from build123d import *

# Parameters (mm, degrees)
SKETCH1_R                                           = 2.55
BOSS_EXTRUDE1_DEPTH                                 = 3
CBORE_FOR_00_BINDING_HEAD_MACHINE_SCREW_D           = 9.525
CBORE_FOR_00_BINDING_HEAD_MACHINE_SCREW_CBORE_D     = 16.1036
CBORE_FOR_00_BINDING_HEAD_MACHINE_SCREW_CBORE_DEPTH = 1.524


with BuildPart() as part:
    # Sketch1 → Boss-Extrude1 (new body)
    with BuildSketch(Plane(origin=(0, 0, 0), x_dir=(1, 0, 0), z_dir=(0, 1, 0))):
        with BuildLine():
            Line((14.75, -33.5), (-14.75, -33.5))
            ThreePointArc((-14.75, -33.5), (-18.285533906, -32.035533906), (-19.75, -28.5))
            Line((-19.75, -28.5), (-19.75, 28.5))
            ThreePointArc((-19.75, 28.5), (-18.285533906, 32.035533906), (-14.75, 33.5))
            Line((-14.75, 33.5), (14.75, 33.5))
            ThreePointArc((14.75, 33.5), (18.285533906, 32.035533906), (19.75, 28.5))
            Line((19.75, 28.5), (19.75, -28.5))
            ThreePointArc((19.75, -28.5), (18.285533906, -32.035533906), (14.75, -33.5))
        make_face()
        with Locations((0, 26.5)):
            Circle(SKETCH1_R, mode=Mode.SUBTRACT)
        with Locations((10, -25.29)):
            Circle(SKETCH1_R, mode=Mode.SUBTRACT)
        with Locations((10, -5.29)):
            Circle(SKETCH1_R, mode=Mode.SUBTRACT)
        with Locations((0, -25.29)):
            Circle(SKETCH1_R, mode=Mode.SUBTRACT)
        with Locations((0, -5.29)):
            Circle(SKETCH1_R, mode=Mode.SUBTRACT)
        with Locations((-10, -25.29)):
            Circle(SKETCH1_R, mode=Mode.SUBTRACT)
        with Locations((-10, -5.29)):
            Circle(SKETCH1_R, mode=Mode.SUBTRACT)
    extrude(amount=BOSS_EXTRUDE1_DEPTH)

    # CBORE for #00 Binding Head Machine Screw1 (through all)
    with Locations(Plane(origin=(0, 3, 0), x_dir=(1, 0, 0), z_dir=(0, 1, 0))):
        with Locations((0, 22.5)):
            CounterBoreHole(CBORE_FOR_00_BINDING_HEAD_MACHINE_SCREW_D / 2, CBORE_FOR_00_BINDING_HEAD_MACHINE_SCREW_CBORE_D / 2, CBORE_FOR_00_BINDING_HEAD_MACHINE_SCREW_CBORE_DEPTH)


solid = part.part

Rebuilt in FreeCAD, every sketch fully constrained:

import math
import FreeCAD as App
import Part
import Sketcher

doc = App.newDocument("Part")
params = doc.addObject("Spreadsheet::Sheet", "Params")
for row, (alias, value) in enumerate([
    ("sketch1_radius", "5 mm"),
    ("sketch1_diameter", "5.1 mm"),
    ("sketch1_height", "57 mm"),
    ("sketch1_width", "29.5 mm"),
    ("pad1_length", "3 mm"),
    ("hole_diameter", "9.525 mm"),
    ("hole_cbore_diameter", "16.1036 mm"),
    ("hole_cbore_depth", "1.524 mm"),
], start=1):
    params.set(f"A{row}", alias)
    params.set(f"B{row}", "=" + value)
    params.setAlias(f"B{row}", alias)

body = doc.addObject("PartDesign::Body", "Body")

sketch1 = body.newObject("Sketcher::SketchObject", "Sketch")
sketch1.AttachmentSupport = (doc.getObject("XZ_Plane"), [""])
sketch1.MapMode = "FlatFace"
sketch1.addGeometry([
    Part.LineSegment(App.Vector(-14.75, 33.5, 0), App.Vector(14.75, 33.5, 0)),
    Part.ArcOfCircle(Part.Circle(App.Vector(14.75, 28.5, 0), App.Vector(0, 0, 1), 5), math.radians(0), math.radians(90)),
    Part.LineSegment(App.Vector(19.75, 28.5, 0), App.Vector(19.75, -28.5, 0)),
    Part.ArcOfCircle(Part.Circle(App.Vector(14.75, -28.5, 0), App.Vector(0, 0, 1), 5), math.radians(-90), math.radians(0)),
    Part.LineSegment(App.Vector(14.75, -33.5, 0), App.Vector(-14.75, -33.5, 0)),
    Part.ArcOfCircle(Part.Circle(App.Vector(-14.75, -28.5, 0), App.Vector(0, 0, 1), 5), math.radians(180), math.radians(270)),
    Part.LineSegment(App.Vector(-19.75, -28.5, 0), App.Vector(-19.75, 28.5, 0)),
    Part.ArcOfCircle(Part.Circle(App.Vector(-14.75, 28.5, 0), App.Vector(0, 0, 1), 5), math.radians(90), math.radians(180)),
    Part.Circle(App.Vector(10, 25.29, 0), App.Vector(0, 0, 1), 2.55),
    Part.Circle(App.Vector(10, 5.29, 0), App.Vector(0, 0, 1), 2.55),
    Part.Circle(App.Vector(0, 25.29, 0), App.Vector(0, 0, 1), 2.55),
    Part.Circle(App.Vector(-10, 25.29, 0), App.Vector(0, 0, 1), 2.55),
    Part.Circle(App.Vector(0, 5.29, 0), App.Vector(0, 0, 1), 2.55),
    Part.Circle(App.Vector(-10, 5.29, 0), App.Vector(0, 0, 1), 2.55),
    Part.Circle(App.Vector(0, -26.5, 0), App.Vector(0, 0, 1), 2.55),
], False)
sketch1.addConstraint([
    Sketcher.Constraint("Tangent", 0, 2, 1, 2),
    Sketcher.Constraint("Tangent", 1, 1, 2, 1),
    Sketcher.Constraint("Tangent", 2, 2, 3, 2),
    Sketcher.Constraint("Tangent", 3, 1, 4, 1),
    Sketcher.Constraint("Tangent", 4, 2, 5, 2),
    Sketcher.Constraint("Tangent", 5, 1, 6, 1),
    Sketcher.Constraint("Tangent", 6, 2, 7, 2),
    Sketcher.Constraint("Tangent", 7, 1, 0, 1),
    Sketcher.Constraint("Horizontal", 0),
    Sketcher.Constraint("Vertical", 2),
    Sketcher.Constraint("Horizontal", 4),
    Sketcher.Constraint("Vertical", 6),
    Sketcher.Constraint("Equal", 1, 3),
    Sketcher.Constraint("Equal", 3, 5),
    Sketcher.Constraint("Equal", 5, 7),
    Sketcher.Constraint("Equal", 8, 9),
    Sketcher.Constraint("Equal", 9, 10),
    Sketcher.Constraint("Equal", 10, 11),
    Sketcher.Constraint("Equal", 11, 12),
    Sketcher.Constraint("Equal", 12, 13),
    Sketcher.Constraint("Equal", 13, 14),
    Sketcher.Constraint("Symmetric", 1, 3, 5, 3, -1, 1),
    Sketcher.Constraint("Symmetric", 8, 3, 11, 3, -2),
    Sketcher.Constraint("Symmetric", 9, 3, 13, 3, -2),
    Sketcher.Constraint("PointOnObject", 10, 3, -2),
    Sketcher.Constraint("PointOnObject", 12, 3, -2),
    Sketcher.Constraint("PointOnObject", 14, 3, -2),
    Sketcher.Constraint("Horizontal", 8, 3, 10, 3),
    Sketcher.Constraint("Horizontal", 9, 3, 12, 3),
    Sketcher.Constraint("Vertical", 8, 3, 9, 3),
    Sketcher.Constraint("Radius", 1, 5.0),
    Sketcher.Constraint("Diameter", 8, 5.1),
    Sketcher.Constraint("DistanceY", 2, 2, 2, 1, 57.0),
    Sketcher.Constraint("DistanceX", 0, 1, 0, 2, 29.5),
    Sketcher.Constraint("DistanceX", -1, 1, 8, 3, 10.0),
    Sketcher.Constraint("DistanceY", 9, 3, 8, 3, 20.0),
    Sketcher.Constraint("DistanceY", 3, 3, 14, 3, 2.0),
    Sketcher.Constraint("DistanceY", -1, 1, 8, 3, 25.29),
])
sketch1.setExpression("Constraints[30]", "Params.sketch1_radius")
sketch1.setExpression("Constraints[31]", "Params.sketch1_diameter")
sketch1.setExpression("Constraints[32]", "Params.sketch1_height")
sketch1.setExpression("Constraints[33]", "Params.sketch1_width")
pad1 = body.newObject("PartDesign::Pad", "Pad")
pad1.Profile = sketch1
pad1.setExpression("Length", "Params.pad1_length")
pad1.Reversed = True

sketch2 = body.newObject("Sketcher::SketchObject", "Sketch001")
sketch2.AttachmentSupport = (doc.getObject("XZ_Plane"), [""])
sketch2.MapMode = "FlatFace"
sketch2.AttachmentOffset = App.Placement(App.Vector(0, 0, -3), App.Rotation())
sketch2.addGeometry(Part.Circle(App.Vector(0, -22.5, 0), App.Vector(0, 0, 1), 4.7625), False)
sketch2.addConstraint([
    Sketcher.Constraint("PointOnObject", 0, 3, -2),
    Sketcher.Constraint("Diameter", 0, 9.525),
    Sketcher.Constraint("DistanceY", 0, 3, -1, 1, 22.5),
])
doc.recompute()
hole = body.newObject("PartDesign::Hole", "Hole")
hole.Profile = sketch2
hole.ThreadType = "None"
hole.setExpression("Diameter", "Params.hole_diameter")
hole.DepthType = "ThroughAll"
hole.HoleCutType = "Counterbore"
hole.setExpression("HoleCutDiameter", "Params.hole_cbore_diameter")
hole.setExpression("HoleCutDepth", "Params.hole_cbore_depth")
hole.Reversed = True

doc.recompute()
